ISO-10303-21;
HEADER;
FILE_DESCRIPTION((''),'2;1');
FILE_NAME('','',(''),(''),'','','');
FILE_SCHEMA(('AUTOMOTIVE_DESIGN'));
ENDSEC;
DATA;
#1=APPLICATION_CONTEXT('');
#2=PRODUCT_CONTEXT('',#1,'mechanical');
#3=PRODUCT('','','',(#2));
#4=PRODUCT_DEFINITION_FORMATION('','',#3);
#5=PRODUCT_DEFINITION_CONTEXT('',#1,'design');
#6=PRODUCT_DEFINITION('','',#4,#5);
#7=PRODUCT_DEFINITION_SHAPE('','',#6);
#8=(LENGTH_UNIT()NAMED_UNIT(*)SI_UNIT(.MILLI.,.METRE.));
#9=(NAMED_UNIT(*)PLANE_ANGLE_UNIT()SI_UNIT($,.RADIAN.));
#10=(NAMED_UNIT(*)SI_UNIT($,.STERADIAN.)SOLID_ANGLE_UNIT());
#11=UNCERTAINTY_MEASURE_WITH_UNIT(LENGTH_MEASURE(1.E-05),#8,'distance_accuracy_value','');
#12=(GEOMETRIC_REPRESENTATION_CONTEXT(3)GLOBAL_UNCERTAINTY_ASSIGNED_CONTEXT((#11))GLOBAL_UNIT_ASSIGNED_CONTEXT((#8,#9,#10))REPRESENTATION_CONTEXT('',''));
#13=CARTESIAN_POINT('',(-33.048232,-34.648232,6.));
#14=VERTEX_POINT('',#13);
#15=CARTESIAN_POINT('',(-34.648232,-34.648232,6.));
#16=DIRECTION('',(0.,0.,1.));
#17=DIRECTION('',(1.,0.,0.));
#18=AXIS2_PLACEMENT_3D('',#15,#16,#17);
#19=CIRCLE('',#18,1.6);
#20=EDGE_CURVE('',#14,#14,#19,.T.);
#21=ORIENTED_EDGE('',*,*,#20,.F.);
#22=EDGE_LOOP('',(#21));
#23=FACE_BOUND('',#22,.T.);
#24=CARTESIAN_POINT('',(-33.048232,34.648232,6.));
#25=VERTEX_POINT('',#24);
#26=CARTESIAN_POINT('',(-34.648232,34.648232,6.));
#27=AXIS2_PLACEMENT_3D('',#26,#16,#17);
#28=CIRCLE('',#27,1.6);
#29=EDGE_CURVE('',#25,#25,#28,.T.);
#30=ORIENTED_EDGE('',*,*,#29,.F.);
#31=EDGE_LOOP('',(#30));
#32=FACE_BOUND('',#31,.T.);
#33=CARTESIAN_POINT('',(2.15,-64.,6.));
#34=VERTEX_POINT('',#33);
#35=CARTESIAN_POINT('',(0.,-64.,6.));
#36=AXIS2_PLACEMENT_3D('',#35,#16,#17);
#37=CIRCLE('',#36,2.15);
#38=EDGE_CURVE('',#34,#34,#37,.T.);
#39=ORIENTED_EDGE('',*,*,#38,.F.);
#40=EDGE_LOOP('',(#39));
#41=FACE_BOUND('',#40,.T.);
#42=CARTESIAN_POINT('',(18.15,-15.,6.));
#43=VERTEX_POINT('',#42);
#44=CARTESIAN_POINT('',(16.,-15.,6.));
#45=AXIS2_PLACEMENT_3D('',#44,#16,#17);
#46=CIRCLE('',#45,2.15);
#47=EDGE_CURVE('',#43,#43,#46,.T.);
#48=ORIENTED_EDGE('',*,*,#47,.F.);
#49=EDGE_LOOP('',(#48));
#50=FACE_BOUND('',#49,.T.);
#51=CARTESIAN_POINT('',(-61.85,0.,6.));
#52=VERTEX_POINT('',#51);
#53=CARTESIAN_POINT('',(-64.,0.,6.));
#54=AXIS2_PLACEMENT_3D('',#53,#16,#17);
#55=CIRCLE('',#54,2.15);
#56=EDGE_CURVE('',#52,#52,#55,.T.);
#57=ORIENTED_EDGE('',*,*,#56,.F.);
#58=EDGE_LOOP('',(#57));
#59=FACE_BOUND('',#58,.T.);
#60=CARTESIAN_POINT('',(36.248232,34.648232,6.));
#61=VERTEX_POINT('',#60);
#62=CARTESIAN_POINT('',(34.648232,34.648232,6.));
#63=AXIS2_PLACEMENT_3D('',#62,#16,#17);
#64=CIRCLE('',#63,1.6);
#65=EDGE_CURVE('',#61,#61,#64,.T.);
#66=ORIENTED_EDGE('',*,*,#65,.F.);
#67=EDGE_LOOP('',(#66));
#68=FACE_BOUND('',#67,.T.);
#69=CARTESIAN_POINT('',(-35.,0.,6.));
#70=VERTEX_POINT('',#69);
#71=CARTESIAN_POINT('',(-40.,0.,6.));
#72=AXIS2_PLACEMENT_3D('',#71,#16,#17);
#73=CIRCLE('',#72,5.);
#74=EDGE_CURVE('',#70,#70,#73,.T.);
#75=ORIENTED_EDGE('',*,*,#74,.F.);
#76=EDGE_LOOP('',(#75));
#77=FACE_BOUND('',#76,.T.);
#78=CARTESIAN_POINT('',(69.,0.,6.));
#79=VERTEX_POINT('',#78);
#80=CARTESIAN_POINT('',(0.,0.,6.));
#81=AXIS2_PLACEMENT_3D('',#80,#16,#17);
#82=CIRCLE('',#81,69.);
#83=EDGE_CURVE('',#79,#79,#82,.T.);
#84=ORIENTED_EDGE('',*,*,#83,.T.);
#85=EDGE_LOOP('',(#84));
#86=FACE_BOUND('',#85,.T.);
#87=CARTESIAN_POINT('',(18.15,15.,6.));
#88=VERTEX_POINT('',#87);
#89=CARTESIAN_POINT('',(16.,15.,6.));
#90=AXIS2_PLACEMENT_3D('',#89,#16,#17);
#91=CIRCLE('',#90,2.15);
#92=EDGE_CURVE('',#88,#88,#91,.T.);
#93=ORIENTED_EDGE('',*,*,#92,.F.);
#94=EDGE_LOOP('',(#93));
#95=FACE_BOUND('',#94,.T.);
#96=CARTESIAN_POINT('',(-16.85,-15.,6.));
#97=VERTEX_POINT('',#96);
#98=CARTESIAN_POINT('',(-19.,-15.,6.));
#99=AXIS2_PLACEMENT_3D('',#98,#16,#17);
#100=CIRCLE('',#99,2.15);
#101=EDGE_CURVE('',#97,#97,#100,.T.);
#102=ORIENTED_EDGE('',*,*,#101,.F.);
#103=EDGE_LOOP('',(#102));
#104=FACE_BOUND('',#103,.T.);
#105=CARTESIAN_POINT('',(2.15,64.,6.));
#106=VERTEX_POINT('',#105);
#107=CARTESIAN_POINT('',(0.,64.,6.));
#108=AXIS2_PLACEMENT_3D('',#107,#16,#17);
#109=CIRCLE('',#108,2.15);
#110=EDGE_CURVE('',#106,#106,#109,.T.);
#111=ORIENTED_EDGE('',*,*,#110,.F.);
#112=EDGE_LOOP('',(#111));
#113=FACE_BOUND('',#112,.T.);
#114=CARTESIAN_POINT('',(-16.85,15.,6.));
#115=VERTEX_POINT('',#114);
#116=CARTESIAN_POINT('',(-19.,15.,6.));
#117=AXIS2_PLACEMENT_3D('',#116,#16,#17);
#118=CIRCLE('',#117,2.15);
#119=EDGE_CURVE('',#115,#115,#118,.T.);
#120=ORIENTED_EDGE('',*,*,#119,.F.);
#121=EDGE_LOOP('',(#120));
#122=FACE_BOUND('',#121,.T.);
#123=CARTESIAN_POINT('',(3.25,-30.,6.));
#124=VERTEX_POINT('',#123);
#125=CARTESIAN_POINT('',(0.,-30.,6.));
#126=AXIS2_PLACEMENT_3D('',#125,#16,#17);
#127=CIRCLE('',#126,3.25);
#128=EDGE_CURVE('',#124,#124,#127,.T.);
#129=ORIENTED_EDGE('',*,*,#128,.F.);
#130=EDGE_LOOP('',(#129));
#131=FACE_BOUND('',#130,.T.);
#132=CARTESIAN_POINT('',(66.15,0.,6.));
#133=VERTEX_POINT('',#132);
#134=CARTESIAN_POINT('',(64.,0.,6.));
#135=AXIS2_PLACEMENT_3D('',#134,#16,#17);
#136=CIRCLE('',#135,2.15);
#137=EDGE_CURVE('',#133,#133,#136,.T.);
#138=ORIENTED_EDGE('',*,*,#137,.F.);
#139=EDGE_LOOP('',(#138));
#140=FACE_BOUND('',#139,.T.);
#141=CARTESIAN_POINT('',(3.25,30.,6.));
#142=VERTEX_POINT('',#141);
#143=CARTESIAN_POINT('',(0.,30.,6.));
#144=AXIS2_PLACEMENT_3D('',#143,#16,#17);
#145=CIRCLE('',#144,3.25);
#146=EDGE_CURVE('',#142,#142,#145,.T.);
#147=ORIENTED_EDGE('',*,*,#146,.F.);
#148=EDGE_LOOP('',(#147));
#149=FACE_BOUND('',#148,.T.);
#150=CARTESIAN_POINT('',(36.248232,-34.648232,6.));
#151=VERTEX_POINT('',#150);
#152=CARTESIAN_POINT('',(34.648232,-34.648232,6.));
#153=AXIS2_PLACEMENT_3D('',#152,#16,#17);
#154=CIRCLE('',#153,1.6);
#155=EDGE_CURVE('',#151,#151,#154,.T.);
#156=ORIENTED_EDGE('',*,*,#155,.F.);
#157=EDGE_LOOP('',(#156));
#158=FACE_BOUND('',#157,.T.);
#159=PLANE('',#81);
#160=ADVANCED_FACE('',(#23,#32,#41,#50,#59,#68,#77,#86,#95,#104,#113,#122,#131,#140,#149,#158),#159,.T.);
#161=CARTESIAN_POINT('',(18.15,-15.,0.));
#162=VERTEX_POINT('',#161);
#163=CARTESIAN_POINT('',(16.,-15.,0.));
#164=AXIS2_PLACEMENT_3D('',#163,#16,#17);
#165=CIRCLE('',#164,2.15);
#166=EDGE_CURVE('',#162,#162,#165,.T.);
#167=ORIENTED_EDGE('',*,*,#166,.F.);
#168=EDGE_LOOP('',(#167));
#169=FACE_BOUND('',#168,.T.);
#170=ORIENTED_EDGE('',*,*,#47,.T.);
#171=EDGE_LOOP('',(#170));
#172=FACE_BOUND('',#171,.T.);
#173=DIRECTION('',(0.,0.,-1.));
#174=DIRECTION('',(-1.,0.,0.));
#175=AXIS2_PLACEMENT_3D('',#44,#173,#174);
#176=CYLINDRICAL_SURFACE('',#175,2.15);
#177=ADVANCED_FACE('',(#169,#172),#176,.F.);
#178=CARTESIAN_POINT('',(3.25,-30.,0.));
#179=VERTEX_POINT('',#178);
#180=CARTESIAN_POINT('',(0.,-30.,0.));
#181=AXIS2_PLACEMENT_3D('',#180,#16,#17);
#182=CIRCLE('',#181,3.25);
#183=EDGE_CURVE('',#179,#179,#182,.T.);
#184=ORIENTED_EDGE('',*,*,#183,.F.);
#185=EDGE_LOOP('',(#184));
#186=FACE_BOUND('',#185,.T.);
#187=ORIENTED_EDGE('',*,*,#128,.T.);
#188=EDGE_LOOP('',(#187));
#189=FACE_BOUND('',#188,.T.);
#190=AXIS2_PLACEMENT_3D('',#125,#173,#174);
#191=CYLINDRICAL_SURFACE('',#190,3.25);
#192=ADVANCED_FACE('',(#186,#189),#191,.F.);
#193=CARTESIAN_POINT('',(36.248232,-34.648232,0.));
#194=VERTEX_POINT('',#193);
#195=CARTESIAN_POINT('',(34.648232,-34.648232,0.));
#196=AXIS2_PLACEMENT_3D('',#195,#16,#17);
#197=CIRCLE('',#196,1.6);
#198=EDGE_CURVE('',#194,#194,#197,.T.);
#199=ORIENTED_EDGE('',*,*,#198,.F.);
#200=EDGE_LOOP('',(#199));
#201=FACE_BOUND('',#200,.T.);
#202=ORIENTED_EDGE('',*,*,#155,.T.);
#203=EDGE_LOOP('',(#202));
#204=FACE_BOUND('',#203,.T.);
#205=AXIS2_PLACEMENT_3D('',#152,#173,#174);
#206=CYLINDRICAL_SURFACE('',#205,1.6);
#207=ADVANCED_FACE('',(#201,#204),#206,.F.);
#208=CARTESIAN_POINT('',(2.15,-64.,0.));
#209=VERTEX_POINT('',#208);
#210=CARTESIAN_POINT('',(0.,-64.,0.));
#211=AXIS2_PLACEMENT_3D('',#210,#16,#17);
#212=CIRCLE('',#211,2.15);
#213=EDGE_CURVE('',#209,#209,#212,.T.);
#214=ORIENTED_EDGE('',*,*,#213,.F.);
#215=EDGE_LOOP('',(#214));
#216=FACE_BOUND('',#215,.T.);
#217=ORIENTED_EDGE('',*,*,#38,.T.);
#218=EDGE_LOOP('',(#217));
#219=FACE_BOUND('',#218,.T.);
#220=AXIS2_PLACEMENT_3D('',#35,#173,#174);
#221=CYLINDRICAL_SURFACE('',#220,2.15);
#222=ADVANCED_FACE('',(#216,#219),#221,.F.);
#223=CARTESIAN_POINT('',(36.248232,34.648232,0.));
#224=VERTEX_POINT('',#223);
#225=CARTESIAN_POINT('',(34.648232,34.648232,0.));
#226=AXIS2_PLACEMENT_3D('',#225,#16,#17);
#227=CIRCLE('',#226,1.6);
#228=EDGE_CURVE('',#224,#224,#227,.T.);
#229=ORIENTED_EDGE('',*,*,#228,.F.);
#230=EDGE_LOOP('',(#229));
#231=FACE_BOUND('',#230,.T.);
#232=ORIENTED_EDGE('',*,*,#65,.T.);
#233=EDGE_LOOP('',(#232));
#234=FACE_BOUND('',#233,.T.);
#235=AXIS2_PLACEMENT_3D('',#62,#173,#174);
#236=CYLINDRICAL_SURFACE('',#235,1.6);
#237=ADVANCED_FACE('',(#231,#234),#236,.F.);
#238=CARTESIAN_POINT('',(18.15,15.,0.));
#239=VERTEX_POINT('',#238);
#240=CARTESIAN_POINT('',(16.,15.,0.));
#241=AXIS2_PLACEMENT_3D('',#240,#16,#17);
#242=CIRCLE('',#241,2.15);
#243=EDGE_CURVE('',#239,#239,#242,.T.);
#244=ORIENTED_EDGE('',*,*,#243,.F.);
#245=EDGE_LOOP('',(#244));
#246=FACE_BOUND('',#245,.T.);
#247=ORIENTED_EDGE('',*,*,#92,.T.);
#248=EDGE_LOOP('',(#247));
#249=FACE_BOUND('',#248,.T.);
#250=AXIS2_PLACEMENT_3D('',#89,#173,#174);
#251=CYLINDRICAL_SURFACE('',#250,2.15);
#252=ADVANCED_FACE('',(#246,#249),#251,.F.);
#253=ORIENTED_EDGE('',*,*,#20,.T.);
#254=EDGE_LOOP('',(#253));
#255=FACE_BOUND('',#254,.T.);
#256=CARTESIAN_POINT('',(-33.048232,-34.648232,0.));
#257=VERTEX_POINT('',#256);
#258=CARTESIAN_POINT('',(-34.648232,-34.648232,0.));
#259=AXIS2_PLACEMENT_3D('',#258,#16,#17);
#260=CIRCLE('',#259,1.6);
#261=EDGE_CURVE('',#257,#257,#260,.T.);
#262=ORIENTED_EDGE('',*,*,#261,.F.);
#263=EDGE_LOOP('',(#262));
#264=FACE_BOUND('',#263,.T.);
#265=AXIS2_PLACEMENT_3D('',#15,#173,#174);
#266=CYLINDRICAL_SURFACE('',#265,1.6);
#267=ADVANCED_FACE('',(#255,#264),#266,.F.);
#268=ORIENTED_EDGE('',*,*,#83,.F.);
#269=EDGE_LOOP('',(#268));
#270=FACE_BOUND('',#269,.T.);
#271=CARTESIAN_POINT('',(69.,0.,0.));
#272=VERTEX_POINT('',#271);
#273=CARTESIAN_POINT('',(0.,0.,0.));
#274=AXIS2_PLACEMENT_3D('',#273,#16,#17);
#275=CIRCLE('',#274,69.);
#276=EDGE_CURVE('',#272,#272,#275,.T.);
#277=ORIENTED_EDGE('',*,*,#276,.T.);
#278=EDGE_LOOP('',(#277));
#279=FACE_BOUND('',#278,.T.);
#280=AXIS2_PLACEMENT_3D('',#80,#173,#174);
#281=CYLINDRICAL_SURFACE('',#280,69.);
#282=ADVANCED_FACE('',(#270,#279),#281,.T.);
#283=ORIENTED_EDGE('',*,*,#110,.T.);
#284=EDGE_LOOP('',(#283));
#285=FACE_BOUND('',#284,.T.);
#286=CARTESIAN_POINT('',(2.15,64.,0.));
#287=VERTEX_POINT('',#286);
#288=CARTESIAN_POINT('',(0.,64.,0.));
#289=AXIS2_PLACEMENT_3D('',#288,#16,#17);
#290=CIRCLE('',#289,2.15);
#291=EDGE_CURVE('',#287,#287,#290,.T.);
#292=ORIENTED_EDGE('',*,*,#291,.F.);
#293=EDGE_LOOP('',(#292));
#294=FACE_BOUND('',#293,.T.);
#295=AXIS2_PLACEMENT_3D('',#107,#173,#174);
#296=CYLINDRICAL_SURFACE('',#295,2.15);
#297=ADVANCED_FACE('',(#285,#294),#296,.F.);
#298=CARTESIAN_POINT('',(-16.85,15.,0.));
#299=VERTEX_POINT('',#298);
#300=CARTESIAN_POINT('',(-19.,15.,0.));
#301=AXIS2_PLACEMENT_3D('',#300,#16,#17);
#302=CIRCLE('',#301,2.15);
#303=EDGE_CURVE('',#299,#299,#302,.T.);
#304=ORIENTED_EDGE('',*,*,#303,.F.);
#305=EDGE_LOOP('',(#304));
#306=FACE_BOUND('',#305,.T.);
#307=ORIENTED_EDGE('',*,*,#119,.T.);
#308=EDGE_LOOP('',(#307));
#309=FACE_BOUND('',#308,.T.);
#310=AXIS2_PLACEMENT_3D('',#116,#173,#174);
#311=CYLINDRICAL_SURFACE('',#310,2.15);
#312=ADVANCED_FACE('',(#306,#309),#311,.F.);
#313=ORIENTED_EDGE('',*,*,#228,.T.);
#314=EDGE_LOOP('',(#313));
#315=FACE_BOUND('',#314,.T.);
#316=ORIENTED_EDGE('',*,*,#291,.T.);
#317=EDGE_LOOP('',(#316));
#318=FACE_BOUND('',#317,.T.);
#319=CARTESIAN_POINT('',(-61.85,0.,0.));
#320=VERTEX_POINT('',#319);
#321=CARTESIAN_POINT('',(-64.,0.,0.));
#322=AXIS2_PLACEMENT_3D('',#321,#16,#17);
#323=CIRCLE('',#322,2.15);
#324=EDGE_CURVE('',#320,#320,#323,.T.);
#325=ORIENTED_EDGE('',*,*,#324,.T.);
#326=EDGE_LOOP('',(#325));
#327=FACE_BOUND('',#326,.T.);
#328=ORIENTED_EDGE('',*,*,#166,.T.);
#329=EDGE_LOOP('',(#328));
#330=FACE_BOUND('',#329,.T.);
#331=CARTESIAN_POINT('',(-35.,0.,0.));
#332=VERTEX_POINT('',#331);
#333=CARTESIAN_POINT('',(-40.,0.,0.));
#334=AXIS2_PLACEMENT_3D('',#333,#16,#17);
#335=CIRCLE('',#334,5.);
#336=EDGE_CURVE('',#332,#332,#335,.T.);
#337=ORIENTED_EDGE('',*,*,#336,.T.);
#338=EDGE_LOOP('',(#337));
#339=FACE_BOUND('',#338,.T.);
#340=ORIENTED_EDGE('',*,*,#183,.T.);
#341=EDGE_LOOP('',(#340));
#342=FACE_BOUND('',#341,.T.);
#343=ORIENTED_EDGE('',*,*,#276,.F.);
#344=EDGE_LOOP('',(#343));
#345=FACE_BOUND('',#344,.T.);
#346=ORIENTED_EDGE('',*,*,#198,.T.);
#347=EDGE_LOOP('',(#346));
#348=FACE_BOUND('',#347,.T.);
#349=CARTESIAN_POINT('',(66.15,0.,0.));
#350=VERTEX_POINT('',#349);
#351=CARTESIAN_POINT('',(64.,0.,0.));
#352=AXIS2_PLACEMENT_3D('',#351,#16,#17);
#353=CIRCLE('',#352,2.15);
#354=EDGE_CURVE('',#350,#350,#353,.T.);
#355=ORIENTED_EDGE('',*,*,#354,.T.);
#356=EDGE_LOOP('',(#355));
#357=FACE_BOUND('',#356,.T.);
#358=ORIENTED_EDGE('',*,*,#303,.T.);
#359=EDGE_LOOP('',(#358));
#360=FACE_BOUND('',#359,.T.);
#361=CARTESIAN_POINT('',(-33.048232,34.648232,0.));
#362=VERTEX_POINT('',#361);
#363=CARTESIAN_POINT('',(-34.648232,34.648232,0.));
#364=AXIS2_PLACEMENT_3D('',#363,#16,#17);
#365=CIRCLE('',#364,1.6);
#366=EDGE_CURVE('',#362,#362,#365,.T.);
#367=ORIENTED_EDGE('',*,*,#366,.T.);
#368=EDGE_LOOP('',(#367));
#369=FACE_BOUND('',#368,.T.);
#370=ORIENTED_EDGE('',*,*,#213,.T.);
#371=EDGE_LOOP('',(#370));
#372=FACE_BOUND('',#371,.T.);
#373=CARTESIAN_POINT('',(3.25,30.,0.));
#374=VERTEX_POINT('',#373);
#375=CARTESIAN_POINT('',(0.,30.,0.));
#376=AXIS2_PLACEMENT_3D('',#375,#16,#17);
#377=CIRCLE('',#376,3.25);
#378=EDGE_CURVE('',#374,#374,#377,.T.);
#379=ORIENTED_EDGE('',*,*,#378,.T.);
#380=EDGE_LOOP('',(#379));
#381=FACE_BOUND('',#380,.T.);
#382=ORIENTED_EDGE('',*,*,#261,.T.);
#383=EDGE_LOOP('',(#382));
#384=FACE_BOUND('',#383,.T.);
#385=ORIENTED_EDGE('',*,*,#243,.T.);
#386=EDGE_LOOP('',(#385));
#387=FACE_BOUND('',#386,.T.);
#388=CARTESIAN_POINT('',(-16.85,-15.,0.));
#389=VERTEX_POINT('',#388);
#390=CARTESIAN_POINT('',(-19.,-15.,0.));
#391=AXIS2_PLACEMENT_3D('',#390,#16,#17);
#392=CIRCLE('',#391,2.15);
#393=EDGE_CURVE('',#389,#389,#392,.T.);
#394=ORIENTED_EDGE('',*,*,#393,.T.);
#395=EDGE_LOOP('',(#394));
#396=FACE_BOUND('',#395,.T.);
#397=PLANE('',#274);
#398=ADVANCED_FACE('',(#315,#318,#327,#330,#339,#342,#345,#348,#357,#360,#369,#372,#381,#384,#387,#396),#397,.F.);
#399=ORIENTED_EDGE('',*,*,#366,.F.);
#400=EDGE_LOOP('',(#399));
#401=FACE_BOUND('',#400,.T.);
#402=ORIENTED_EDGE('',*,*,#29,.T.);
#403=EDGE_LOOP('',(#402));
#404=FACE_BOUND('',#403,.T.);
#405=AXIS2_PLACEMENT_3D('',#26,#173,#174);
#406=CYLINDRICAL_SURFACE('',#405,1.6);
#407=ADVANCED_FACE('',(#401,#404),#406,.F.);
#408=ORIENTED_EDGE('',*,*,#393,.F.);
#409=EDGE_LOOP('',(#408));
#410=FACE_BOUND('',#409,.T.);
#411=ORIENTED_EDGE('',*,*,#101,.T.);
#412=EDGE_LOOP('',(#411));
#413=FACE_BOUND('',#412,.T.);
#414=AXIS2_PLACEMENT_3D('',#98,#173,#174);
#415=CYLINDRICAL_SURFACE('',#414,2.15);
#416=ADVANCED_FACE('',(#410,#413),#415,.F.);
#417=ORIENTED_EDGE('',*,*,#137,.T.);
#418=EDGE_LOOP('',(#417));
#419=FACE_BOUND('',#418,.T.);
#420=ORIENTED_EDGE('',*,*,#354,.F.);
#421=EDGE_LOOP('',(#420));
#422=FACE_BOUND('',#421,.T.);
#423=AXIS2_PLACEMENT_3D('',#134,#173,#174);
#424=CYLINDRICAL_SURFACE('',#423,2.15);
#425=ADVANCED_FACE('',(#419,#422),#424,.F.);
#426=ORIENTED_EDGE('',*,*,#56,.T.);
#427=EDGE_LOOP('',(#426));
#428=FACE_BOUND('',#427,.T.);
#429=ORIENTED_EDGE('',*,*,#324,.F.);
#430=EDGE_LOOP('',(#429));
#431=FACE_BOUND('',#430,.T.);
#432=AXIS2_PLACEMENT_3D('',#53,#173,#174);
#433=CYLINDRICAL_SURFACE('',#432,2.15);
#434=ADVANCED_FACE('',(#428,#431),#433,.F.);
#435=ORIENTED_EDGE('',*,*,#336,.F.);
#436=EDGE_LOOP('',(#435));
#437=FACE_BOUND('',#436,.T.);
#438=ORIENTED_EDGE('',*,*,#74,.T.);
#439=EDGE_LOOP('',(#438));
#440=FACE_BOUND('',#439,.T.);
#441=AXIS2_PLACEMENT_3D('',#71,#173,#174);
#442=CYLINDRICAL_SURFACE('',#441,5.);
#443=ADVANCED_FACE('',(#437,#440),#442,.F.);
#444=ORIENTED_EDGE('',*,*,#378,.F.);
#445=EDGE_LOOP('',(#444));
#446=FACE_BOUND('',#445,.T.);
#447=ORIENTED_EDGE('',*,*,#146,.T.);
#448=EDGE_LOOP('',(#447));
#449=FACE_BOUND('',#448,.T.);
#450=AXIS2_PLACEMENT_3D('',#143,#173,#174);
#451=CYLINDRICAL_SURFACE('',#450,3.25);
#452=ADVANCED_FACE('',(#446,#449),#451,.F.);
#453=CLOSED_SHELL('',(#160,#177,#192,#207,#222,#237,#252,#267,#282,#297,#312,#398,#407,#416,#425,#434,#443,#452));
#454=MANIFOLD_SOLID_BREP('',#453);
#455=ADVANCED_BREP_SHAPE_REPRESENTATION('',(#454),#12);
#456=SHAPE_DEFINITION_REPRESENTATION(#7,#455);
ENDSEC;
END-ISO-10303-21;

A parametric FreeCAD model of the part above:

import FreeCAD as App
import Part
import Sketcher
from FreeCAD import Vector
Q = App.Units.Quantity

doc = App.newDocument("Part")
body = doc.addObject("PartDesign::Body", "Body")

sketch1 = body.newObject("Sketcher::SketchObject", "Sketch")
sketch1.AttachmentSupport = (doc.getObject("XY_Plane"), [""])
sketch1.MapMode = "FlatFace"
sketch1.addGeometry([
    Part.Circle(Vector(0, 0, 0), Vector(0, 0, 1), 69),
    Part.Circle(Vector(-34.648232, -34.648232, 0), Vector(0, 0, 1), 1.6),
    Part.Circle(Vector(-19, -15, 0), Vector(0, 0, 1), 2.15),
    Part.Circle(Vector(0, -64, 0), Vector(0, 0, 1), 2.15),
    Part.Circle(Vector(34.648232, -34.648232, 0), Vector(0, 0, 1), 1.6),
    Part.Circle(Vector(0, -30, 0), Vector(0, 0, 1), 3.25),
    Part.Circle(Vector(16, -15, 0), Vector(0, 0, 1), 2.15),
    Part.Circle(Vector(-64, 0, 0), Vector(0, 0, 1), 2.15),
    Part.Circle(Vector(-40, 0, 0), Vector(0, 0, 1), 5),
    Part.Circle(Vector(-19, 15, 0), Vector(0, 0, 1), 2.15),
    Part.Circle(Vector(-34.648232, 34.648232, 0), Vector(0, 0, 1), 1.6),
    Part.Circle(Vector(16, 15, 0), Vector(0, 0, 1), 2.15),
    Part.Circle(Vector(0, 30, 0), Vector(0, 0, 1), 3.25),
    Part.Circle(Vector(64, 0, 0), Vector(0, 0, 1), 2.15),
    Part.Circle(Vector(0, 64, 0), Vector(0, 0, 1), 2.15),
    Part.Circle(Vector(34.648232, 34.648232, 0), Vector(0, 0, 1), 1.6),
], False)
sketch1.addConstraint([
    Sketcher.Constraint("Coincident", 0, 3, -1, 1),
    Sketcher.Constraint("Equal", 2, 3),
    Sketcher.Constraint("Equal", 1, 4),
    Sketcher.Constraint("Equal", 3, 6),
    Sketcher.Constraint("Equal", 6, 7),
    Sketcher.Constraint("Equal", 7, 9),
    Sketcher.Constraint("Equal", 4, 10),
    Sketcher.Constraint("Equal", 9, 11),
    Sketcher.Constraint("Equal", 5, 12),
    Sketcher.Constraint("Equal", 11, 13),
    Sketcher.Constraint("Equal", 13, 14),
    Sketcher.Constraint("Equal", 10, 15),
    Sketcher.Constraint("Symmetric", 4, 3, 10, 3, -1, 1),
    Sketcher.Constraint("Symmetric", 5, 3, 12, 3, -1, 1),
    Sketcher.Constraint("Symmetric", 7, 3, 13, 3, -1, 1),
    Sketcher.Constraint("Symmetric", 3, 3, 14, 3, -1, 1),
    Sketcher.Constraint("Symmetric", 1, 3, 15, 3, -1, 1),
    Sketcher.Constraint("Symmetric", 1, 3, 4, 3, -2),
    Sketcher.Constraint("Symmetric", 2, 3, 9, 3, -1),
    Sketcher.Constraint("Symmetric", 6, 3, 11, 3, -1),
    Sketcher.Constraint("PointOnObject", 3, 3, -2),
    Sketcher.Constraint("PointOnObject", 5, 3, -2),
    Sketcher.Constraint("PointOnObject", 7, 3, -1),
    Sketcher.Constraint("PointOnObject", 8, 3, -1),
    Sketcher.Constraint("Horizontal", 2, 3, 6, 3),
    Sketcher.Constraint("Diameter", 0, Q("138 mm")),
    Sketcher.Constraint("Diameter", 8, Q("10 mm")),
    Sketcher.Constraint("Diameter", 1, Q("3.2 mm")),
    Sketcher.Constraint("Diameter", 2, Q("4.3 mm")),
    Sketcher.Constraint("Diameter", 5, Q("6.5 mm")),
    Sketcher.Constraint("DistanceX", 2, 3, -1, 1, Q("19 mm")),
    Sketcher.Constraint("DistanceY", 2, 3, -1, 1, Q("15 mm")),
    Sketcher.Constraint("DistanceY", 3, 3, -1, 1, Q("64 mm")),
    Sketcher.Constraint("DistanceY", 5, 3, -1, 1, Q("30 mm")),
    Sketcher.Constraint("DistanceX", -1, 1, 6, 3, Q("16 mm")),
    Sketcher.Constraint("DistanceX", 7, 3, -1, 1, Q("64 mm")),
    Sketcher.Constraint("DistanceX", 8, 3, -1, 1, Q("40 mm")),
    Sketcher.Constraint("DistanceX", 1, 3, -1, 1, Q("34.648232 mm")),
    Sketcher.Constraint("DistanceY", 1, 3, -1, 1, Q("34.648232 mm")),
])
pad1 = body.newObject("PartDesign::Pad", "Pad")
pad1.Profile = sketch1
pad1.Length = 6

doc.recompute()
